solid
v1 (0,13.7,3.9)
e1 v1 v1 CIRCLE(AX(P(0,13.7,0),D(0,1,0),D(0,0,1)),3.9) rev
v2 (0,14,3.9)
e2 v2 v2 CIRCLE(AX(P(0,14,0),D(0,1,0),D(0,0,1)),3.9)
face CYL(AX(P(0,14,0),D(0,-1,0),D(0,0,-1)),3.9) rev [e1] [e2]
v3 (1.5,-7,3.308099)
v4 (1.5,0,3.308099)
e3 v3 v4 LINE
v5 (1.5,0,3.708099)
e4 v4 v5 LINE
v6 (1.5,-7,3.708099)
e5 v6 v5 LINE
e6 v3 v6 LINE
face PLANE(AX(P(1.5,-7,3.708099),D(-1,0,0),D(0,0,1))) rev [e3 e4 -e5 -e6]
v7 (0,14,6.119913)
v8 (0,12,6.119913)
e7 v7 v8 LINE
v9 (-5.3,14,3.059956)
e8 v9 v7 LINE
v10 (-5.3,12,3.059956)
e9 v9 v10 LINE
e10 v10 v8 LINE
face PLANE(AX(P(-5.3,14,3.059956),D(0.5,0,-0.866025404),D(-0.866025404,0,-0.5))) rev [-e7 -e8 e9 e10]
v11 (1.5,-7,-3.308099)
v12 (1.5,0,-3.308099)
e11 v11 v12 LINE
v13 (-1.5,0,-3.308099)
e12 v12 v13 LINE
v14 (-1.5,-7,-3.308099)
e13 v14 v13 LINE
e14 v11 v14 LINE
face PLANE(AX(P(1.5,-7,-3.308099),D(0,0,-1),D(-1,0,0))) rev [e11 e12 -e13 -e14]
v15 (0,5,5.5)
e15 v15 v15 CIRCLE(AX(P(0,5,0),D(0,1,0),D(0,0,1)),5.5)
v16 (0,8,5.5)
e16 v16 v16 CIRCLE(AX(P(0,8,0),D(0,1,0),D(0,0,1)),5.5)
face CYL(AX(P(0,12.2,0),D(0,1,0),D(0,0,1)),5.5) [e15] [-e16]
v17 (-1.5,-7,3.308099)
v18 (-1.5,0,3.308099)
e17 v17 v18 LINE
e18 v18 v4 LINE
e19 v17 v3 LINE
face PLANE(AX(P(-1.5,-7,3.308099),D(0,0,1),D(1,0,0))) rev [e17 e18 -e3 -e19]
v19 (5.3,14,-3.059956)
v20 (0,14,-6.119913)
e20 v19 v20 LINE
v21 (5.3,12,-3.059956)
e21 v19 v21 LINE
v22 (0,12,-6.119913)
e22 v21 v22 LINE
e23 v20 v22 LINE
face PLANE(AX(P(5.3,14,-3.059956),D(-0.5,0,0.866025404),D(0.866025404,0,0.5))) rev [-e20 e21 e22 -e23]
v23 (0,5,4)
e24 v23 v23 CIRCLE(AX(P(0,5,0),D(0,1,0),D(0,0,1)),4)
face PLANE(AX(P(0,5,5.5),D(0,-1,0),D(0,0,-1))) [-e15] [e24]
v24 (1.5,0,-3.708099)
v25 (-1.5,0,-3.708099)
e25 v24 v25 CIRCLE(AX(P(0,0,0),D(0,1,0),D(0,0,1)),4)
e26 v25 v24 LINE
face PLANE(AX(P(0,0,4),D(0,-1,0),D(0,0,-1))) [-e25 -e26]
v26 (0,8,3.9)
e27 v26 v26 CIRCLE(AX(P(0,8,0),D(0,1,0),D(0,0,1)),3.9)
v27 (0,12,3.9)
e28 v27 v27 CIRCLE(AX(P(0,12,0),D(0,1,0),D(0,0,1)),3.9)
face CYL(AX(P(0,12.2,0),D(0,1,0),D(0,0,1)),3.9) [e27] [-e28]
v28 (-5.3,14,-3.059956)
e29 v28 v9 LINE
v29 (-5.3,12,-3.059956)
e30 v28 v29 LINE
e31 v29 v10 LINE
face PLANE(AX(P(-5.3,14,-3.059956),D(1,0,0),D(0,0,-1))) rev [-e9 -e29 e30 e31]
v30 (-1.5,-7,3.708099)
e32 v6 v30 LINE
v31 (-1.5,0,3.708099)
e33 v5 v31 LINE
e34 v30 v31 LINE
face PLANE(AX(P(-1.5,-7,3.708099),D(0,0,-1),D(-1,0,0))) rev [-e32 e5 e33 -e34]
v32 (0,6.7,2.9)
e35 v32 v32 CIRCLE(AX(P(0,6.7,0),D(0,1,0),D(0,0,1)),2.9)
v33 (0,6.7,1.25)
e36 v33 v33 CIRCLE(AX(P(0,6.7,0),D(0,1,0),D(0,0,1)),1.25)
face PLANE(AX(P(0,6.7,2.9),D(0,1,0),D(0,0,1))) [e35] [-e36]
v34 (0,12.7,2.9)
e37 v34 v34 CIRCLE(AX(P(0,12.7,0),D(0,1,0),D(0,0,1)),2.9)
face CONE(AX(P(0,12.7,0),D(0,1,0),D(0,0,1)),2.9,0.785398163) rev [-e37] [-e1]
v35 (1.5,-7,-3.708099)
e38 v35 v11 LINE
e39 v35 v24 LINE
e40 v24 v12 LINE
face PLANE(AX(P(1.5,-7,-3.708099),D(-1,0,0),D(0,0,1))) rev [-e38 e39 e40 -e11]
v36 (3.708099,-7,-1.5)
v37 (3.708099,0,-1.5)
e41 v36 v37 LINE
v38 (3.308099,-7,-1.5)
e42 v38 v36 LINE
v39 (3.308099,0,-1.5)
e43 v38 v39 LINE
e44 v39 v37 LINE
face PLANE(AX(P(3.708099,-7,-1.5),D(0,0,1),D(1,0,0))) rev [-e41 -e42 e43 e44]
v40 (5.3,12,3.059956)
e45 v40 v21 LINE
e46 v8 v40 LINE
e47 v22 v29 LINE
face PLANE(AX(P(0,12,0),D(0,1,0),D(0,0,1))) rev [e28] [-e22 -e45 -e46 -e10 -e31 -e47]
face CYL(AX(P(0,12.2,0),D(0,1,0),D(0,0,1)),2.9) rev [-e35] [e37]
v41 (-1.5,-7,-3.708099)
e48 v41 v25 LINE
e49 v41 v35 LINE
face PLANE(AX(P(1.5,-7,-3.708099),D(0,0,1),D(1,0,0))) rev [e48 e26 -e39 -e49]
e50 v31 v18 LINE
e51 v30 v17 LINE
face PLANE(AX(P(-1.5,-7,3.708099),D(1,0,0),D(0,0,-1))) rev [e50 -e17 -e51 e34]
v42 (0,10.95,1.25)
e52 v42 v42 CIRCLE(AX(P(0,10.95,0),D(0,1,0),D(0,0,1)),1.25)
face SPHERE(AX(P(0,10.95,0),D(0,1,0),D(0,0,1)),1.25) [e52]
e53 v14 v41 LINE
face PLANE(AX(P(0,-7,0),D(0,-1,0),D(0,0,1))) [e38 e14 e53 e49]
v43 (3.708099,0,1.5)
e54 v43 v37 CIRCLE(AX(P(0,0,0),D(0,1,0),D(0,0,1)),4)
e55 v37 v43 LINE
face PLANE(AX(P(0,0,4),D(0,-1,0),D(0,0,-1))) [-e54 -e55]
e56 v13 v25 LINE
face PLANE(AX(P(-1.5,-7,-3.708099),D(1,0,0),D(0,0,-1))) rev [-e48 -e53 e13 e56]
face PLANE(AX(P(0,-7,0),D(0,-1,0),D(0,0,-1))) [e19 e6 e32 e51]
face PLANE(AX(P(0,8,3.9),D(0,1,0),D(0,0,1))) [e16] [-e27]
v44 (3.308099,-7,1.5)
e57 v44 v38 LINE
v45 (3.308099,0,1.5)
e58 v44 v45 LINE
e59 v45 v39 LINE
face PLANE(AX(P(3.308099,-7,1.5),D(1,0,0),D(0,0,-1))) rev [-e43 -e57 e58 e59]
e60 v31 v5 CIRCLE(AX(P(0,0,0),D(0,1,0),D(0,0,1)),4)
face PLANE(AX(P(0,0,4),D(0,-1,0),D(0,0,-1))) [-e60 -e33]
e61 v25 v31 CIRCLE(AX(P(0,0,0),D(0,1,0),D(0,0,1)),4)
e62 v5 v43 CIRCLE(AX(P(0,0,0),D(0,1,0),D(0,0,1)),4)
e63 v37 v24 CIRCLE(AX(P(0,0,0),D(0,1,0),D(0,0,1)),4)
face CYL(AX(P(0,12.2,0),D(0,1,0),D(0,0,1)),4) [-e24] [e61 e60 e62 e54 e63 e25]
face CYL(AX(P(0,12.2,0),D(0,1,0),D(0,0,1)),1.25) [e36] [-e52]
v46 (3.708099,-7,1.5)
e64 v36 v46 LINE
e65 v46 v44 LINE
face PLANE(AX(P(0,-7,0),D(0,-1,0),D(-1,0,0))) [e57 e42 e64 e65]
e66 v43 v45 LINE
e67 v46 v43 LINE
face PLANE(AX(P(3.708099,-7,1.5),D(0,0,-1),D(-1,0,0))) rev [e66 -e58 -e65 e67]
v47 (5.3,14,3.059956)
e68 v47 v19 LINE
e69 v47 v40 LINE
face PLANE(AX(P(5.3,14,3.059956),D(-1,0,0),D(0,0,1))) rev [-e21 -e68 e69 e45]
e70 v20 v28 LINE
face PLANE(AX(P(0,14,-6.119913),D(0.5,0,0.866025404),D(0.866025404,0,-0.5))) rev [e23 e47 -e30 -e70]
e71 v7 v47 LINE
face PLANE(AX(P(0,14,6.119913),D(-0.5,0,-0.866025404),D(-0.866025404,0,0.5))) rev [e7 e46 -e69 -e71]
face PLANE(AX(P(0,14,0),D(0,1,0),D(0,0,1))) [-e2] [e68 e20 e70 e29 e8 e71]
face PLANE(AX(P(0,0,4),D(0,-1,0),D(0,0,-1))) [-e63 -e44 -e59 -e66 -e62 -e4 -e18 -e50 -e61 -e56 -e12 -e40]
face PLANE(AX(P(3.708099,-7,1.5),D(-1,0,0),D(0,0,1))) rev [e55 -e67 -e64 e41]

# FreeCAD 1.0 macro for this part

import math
import FreeCAD as App
import Part
import Sketcher
from FreeCAD import Vector
Q = App.Units.Quantity

doc = App.newDocument("Part")
body = doc.addObject("PartDesign::Body", "Body")

sketch1 = body.newObject("Sketcher::SketchObject", "Sketch")
sketch1.AttachmentSupport = (doc.getObject("YZ_Plane"), [""])
sketch1.MapMode = "FlatFace"
sketch1.addGeometry(Part.LineSegment(Vector(13.7, 3.9, 0), Vector(8, 3.9, 0)), False)
sketch1.addGeometry(Part.LineSegment(Vector(8, 3.9, 0), Vector(8, 5.5, 0)), False)
sketch1.addGeometry(Part.LineSegment(Vector(8, 5.5, 0), Vector(5, 5.5, 0)), False)
sketch1.addGeometry(Part.LineSegment(Vector(5, 5.5, 0), Vector(5, 4, 0)), False)
sketch1.addGeometry(Part.LineSegment(Vector(5, 4, 0), Vector(0, 4, 0)), False)
sketch1.addGeometry(Part.LineSegment(Vector(0, 4, 0), Vector(0, 0, 0)), False)
sketch1.addGeometry(Part.LineSegment(Vector(0, 0, 0), Vector(12.2, 0, 0)), False)
sketch1.addGeometry(Part.ArcOfCircle(Part.Circle(Vector(10.9, 0, 0), Vector(0, 0, 1), 1.3), math.radians(0), math.radians(90)), False)
sketch1.addGeometry(Part.LineSegment(Vector(10.9, 1.2, 0), Vector(6.7, 1.2, 0)), False)
sketch1.addGeometry(Part.LineSegment(Vector(6.7, 1.2, 0), Vector(6.7, 2.9, 0)), False)
sketch1.addGeometry(Part.LineSegment(Vector(6.7, 2.9, 0), Vector(12.7, 2.9, 0)), False)
sketch1.addGeometry(Part.LineSegment(Vector(12.7, 2.9, 0), Vector(13.7, 3.9, 0)), False)
sketch1.addConstraint(Sketcher.Constraint("Coincident", 0, 2, 1, 1))
sketch1.addConstraint(Sketcher.Constraint("Coincident", 1, 2, 2, 1))
sketch1.addConstraint(Sketcher.Constraint("Coincident", 2, 2, 3, 1))
sketch1.addConstraint(Sketcher.Constraint("Coincident", 3, 2, 4, 1))
sketch1.addConstraint(Sketcher.Constraint("Coincident", 4, 2, 5, 1))
sketch1.addConstraint(Sketcher.Constraint("Coincident", 5, 2, 6, 1))
sketch1.addConstraint(Sketcher.Constraint("Coincident", 6, 2, 7, 1))
sketch1.addConstraint(Sketcher.Constraint("Tangent", 7, 2, 8, 1))
sketch1.addConstraint(Sketcher.Constraint("Coincident", 8, 2, 9, 1))
sketch1.addConstraint(Sketcher.Constraint("Coincident", 9, 2, 10, 1))
sketch1.addConstraint(Sketcher.Constraint("Coincident", 10, 2, 11, 1))
sketch1.addConstraint(Sketcher.Constraint("Coincident", 11, 2, 0, 1))
sketch1.addConstraint(Sketcher.Constraint("Horizontal", 0))
sketch1.addConstraint(Sketcher.Constraint("Vertical", 1))
sketch1.addConstraint(Sketcher.Constraint("Horizontal", 2))
sketch1.addConstraint(Sketcher.Constraint("Vertical", 3))
sketch1.addConstraint(Sketcher.Constraint("Horizontal", 4))
sketch1.addConstraint(Sketcher.Constraint("Vertical", 5))
sketch1.addConstraint(Sketcher.Constraint("Horizontal", 6))
sketch1.addConstraint(Sketcher.Constraint("Horizontal", 8))
sketch1.addConstraint(Sketcher.Constraint("Vertical", 9))
sketch1.addConstraint(Sketcher.Constraint("Horizontal", 10))
sketch1.addConstraint(Sketcher.Constraint("Coincident", 5, 2, -1, 1))
sketch1.addConstraint(Sketcher.Constraint("PointOnObject", 7, 3, -1))
sketch1.addConstraint(Sketcher.Constraint("DistanceX", 2, 2, 2, 1, Q("3 mm")))
sketch1.addConstraint(Sketcher.Constraint("DistanceX", 4, 2, 4, 1, Q("5 mm")))
sketch1.addConstraint(Sketcher.Constraint("DistanceX", 10, 1, 10, 2, Q("6 mm")))
sketch1.addConstraint(Sketcher.Constraint("DistanceY", 5, 2, 5, 1, Q("4 mm")))
sketch1.addConstraint(Sketcher.Constraint("Angle", 11, Q("45 deg")))
sketch1.addConstraint(Sketcher.Constraint("Radius", 7, Q("1.25 mm")))
sketch1.addConstraint(Sketcher.Constraint("DistanceX", 0, 2, 0, 1, Q("5.7 mm")))
sketch1.addConstraint(Sketcher.Constraint("DistanceX", 6, 1, 6, 2, Q("12.2 mm")))
sketch1.addConstraint(Sketcher.Constraint("DistanceY", 1, 1, 1, 2, Q("1.6 mm")))
sketch1.addConstraint(Sketcher.Constraint("DistanceY", 3, 2, 3, 1, Q("1.5 mm")))
sketch1.addConstraint(Sketcher.Constraint("DistanceY", 9, 2, 0, 2, Q("1 mm")))
revolution = body.newObject("PartDesign::Revolution", "Revolution")
revolution.Profile = sketch1
revolution.ReferenceAxis = (sketch1, ["H_Axis"])
revolution.Angle = 360

sketch2 = body.newObject("Sketcher::SketchObject", "Sketch001")
sketch2.AttachmentSupport = (doc.getObject("XZ_Plane"), [""])
sketch2.MapMode = "FlatFace"
sketch2.AttachmentOffset = App.Placement(Vector(0, 0, -12), App.Rotation())
sketch2.addGeometry(Part.LineSegment(Vector(5.3, -3.1, 0), Vector(0, -6.1, 0)), False)
sketch2.addGeometry(Part.LineSegment(Vector(0, -6.1, 0), Vector(-5.3, -3.1, 0)), False)
sketch2.addGeometry(Part.LineSegment(Vector(-5.3, -3.1, 0), Vector(-5.3, 3.1, 0)), False)
sketch2.addGeometry(Part.LineSegment(Vector(-5.3, 3.1, 0), Vector(0, 6.1, 0)), False)
sketch2.addGeometry(Part.LineSegment(Vector(0, 6.1, 0), Vector(5.3, 3.1, 0)), False)
sketch2.addGeometry(Part.LineSegment(Vector(5.3, 3.1, 0), Vector(5.3, -3.1, 0)), False)
sketch2.addGeometry(Part.Circle(Vector(0, 0, 0), Vector(0, 0, 1), 3.9), False)
sketch2.addConstraint(Sketcher.Constraint("Coincident", 0, 2, 1, 1))
sketch2.addConstraint(Sketcher.Constraint("Coincident", 1, 2, 2, 1))
sketch2.addConstraint(Sketcher.Constraint("Coincident", 2, 2, 3, 1))
sketch2.addConstraint(Sketcher.Constraint("Coincident", 3, 2, 4, 1))
sketch2.addConstraint(Sketcher.Constraint("Coincident", 4, 2, 5, 1))
sketch2.addConstraint(Sketcher.Constraint("Coincident", 5, 2, 0, 1))
sketch2.addConstraint(Sketcher.Constraint("Vertical", 2))
sketch2.addConstraint(Sketcher.Constraint("Vertical", 5))
sketch2.addConstraint(Sketcher.Constraint("Coincident", 6, 3, -1, 1))
sketch2.addConstraint(Sketcher.Constraint("Symmetric", 0, 2, 3, 2, -1, 1))
sketch2.addConstraint(Sketcher.Constraint("Symmetric", 1, 2, 4, 2, -1, 1))
sketch2.addConstraint(Sketcher.Constraint("PointOnObject", 0, 2, -2))
sketch2.addConstraint(Sketcher.Constraint("Parallel", 0, 3))
sketch2.addConstraint(Sketcher.Constraint("Horizontal", 2, 2, 4, 2))
sketch2.addConstraint(Sketcher.Constraint("Diameter", 6, Q("7.8 mm")))
sketch2.addConstraint(Sketcher.Constraint("Angle", 0, Q("-150 deg")))
sketch2.addConstraint(Sketcher.Constraint("DistanceX", 1, 2, -1, 1, Q("5.3 mm")))
sketch2.addConstraint(Sketcher.Constraint("DistanceY", 2, 1, 2, 2, Q("6.119913 mm")))
pad1 = body.newObject("PartDesign::Pad", "Pad")
pad1.Profile = sketch2
pad1.Length = 2
pad1.Reversed = True

sketch3 = body.newObject("Sketcher::SketchObject", "Sketch002")
sketch3.AttachmentSupport = (doc.getObject("XZ_Plane"), [""])
sketch3.MapMode = "FlatFace"
sketch3.addGeometry(Part.LineSegment(Vector(-1.5, 3.71, 0), Vector(-1.5, 3.31, 0)), False)
sketch3.addGeometry(Part.LineSegment(Vector(-1.5, 3.31, 0), Vector(1.5, 3.31, 0)), False)
sketch3.addGeometry(Part.LineSegment(Vector(1.5, 3.31, 0), Vector(1.5, 3.71, 0)), False)
sketch3.addGeometry(Part.LineSegment(Vector(1.5, 3.71, 0), Vector(-1.5, 3.71, 0)), False)
sketch3.addConstraint(Sketcher.Constraint("Coincident", 0, 2, 1, 1))
sketch3.addConstraint(Sketcher.Constraint("Coincident", 1, 2, 2, 1))
sketch3.addConstraint(Sketcher.Constraint("Coincident", 2, 2, 3, 1))
sketch3.addConstraint(Sketcher.Constraint("Coincident", 3, 2, 0, 1))
sketch3.addConstraint(Sketcher.Constraint("Vertical", 0))
sketch3.addConstraint(Sketcher.Constraint("Horizontal", 1))
sketch3.addConstraint(Sketcher.Constraint("Vertical", 2))
sketch3.addConstraint(Sketcher.Constraint("Horizontal", 3))
sketch3.addConstraint(Sketcher.Constraint("DistanceX", 1, 1, 1, 2, Q("3 mm")))
sketch3.addConstraint(Sketcher.Constraint("DistanceY", 0, 2, 0, 1, Q("0.4 mm")))
sketch3.addConstraint(Sketcher.Constraint("DistanceX", 0, 2, -1, 1, Q("1.5 mm")))
sketch3.addConstraint(Sketcher.Constraint("DistanceY", -1, 1, 0, 2, Q("3.308099 mm")))
pad2 = body.newObject("PartDesign::Pad", "Pad001")
pad2.Profile = sketch3
pad2.Length = 7
doc.recompute()

polarpattern = body.newObject("PartDesign::PolarPattern", "PolarPattern")
polarpattern.Originals = [pad2]
polarpattern.Axis = (doc.getObject("Y_Axis"), [""])
polarpattern.Angle = 180
polarpattern.Occurrences = 3
body.Tip = polarpattern

doc.recompute()
